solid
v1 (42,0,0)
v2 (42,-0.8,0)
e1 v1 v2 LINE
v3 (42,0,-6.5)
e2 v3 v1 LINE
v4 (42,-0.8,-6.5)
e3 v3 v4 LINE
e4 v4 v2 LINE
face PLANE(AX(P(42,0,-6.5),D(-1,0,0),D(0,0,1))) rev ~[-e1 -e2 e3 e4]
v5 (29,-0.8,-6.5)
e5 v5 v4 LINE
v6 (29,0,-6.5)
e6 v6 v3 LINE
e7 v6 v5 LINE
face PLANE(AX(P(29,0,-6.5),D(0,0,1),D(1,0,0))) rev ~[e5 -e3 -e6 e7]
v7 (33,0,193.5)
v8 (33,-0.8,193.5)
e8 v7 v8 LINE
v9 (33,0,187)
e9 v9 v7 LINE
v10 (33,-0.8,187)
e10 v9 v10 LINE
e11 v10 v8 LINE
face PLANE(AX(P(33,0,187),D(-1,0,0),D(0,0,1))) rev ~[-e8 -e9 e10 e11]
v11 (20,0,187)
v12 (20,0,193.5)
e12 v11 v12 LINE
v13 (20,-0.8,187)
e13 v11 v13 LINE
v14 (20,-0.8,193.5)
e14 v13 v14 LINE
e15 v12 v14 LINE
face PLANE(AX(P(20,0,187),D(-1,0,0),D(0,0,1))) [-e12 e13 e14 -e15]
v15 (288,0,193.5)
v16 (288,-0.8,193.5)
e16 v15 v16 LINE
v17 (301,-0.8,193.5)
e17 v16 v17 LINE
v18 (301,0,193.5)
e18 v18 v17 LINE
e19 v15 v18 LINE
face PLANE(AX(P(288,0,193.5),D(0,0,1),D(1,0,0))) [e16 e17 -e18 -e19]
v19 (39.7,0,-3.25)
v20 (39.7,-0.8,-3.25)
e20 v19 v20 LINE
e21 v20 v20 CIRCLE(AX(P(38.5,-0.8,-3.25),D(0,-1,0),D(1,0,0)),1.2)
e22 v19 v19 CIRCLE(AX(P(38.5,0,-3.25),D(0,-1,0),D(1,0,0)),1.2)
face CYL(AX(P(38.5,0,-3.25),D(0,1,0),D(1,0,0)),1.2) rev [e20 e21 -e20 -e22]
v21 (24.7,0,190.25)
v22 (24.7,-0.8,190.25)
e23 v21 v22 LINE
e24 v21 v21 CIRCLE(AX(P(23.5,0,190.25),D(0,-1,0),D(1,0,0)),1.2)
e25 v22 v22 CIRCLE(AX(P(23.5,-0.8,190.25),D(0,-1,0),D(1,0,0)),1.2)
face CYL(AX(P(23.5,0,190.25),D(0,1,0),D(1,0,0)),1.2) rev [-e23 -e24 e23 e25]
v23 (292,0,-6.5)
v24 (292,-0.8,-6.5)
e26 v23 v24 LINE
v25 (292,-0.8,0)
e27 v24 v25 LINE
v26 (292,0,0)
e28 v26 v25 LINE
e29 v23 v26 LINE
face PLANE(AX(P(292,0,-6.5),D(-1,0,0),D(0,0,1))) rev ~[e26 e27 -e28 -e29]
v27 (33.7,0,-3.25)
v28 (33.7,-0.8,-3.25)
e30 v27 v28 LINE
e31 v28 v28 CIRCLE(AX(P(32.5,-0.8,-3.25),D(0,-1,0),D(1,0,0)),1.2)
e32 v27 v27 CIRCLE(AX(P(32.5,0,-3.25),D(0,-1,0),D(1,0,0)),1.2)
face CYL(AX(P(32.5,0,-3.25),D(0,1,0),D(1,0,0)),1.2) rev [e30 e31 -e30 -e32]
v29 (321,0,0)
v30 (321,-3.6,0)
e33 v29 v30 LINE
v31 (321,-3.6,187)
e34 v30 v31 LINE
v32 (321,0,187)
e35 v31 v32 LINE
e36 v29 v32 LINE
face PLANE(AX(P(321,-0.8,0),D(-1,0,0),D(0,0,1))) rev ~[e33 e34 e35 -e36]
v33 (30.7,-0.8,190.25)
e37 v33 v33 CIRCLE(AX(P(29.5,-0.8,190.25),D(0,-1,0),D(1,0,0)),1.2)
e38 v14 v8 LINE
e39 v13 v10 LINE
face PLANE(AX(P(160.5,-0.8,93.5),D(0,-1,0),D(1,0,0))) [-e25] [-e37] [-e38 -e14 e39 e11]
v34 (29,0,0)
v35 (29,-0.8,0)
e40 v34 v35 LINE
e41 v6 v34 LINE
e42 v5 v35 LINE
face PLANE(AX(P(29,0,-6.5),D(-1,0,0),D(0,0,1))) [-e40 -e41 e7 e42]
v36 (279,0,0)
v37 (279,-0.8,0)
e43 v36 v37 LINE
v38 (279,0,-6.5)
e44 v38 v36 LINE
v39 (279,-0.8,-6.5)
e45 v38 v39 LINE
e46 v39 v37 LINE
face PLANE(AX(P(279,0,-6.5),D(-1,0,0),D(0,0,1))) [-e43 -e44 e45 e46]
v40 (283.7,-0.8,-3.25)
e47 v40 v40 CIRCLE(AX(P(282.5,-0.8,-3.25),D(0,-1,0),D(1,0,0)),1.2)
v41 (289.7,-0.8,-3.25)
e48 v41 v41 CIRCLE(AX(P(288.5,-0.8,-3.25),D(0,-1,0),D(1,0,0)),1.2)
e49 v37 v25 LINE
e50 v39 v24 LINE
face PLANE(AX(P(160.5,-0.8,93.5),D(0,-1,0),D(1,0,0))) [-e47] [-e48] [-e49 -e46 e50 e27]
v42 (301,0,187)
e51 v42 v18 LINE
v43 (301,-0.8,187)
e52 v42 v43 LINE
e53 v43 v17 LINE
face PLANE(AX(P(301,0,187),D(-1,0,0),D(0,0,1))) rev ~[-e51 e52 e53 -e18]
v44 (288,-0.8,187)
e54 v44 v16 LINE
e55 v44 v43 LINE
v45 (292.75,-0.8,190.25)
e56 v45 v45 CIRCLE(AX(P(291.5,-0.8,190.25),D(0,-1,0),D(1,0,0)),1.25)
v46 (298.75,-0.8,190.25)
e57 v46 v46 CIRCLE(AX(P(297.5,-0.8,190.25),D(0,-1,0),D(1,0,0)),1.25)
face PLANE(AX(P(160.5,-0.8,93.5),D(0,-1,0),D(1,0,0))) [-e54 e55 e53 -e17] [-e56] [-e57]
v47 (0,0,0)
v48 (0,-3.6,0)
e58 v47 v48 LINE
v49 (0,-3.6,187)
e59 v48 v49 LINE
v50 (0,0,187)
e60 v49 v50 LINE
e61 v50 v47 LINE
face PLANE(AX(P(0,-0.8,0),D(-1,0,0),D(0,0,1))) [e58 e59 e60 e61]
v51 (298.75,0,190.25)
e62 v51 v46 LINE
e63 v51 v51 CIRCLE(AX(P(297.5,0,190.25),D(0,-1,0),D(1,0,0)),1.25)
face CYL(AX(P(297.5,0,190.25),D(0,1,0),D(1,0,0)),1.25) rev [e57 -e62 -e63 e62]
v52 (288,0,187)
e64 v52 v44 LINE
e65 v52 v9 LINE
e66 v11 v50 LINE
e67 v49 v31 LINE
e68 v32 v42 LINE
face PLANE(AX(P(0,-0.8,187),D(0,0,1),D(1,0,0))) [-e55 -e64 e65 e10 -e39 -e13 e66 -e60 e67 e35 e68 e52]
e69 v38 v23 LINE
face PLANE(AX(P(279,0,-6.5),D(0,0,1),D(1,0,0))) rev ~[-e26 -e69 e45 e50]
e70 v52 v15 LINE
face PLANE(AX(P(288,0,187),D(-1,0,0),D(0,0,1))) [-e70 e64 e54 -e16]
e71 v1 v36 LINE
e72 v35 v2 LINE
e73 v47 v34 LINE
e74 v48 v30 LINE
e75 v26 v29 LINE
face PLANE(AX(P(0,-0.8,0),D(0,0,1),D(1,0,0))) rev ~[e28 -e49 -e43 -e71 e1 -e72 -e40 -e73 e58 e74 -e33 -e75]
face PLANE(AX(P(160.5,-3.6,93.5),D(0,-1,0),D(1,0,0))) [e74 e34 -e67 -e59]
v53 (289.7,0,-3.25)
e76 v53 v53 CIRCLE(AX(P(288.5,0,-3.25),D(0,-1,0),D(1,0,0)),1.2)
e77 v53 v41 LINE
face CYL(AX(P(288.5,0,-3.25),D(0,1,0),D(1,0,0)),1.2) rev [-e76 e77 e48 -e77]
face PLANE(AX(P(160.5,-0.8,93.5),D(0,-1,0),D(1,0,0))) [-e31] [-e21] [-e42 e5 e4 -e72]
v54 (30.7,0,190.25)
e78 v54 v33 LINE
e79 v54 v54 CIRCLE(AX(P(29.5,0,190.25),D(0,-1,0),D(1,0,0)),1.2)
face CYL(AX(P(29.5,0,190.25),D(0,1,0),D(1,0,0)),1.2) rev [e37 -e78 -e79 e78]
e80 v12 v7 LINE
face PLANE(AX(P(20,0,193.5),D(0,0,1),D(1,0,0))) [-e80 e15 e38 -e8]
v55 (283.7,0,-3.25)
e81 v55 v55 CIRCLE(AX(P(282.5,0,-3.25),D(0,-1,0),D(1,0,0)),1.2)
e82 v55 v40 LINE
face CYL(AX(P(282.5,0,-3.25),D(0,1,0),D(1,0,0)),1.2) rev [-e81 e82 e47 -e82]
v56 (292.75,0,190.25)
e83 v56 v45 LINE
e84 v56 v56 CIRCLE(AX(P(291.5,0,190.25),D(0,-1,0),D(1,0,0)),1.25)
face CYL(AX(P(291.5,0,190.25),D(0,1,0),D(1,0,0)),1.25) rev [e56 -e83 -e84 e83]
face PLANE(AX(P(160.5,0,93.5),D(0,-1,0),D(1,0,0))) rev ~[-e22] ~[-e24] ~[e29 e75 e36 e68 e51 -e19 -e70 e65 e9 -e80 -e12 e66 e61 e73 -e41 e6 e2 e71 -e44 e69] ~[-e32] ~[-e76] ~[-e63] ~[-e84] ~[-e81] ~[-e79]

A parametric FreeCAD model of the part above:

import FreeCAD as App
import Part
import Sketcher
from FreeCAD import Vector
Q = App.Units.Quantity


def add_polygon(sketch, points):
    """Adds a closed chain of lines whose ends are joined by coincident constraints."""
    first, n = sketch.GeometryCount, len(points)
    for a, b in zip(points, points[1:] + points[:1]):
        sketch.addGeometry(Part.LineSegment(App.Vector(*a, 0), App.Vector(*b, 0)), False)
    for i in range(n):
        sketch.addConstraint(Sketcher.Constraint("Coincident", first + i, 2, first + (i + 1) % n, 1))

doc = App.newDocument("Part")
body = doc.addObject("PartDesign::Body", "Body")

sketch1 = body.newObject("Sketcher::SketchObject", "Sketch")
sketch1.AttachmentSupport = (doc.getObject("XZ_Plane"), [""])
sketch1.MapMode = "FlatFace"
add_polygon(sketch1, [(0, 187), (0, 0), (29, 0), (29, -6.5), (42, -6.5), (42, 0), (279, 0), (279, -6.5), (292, -6.5), (292, 0), (321, 0), (321, 187), (301, 187), (301, 193.5), (288, 193.5), (288, 187), (33, 187), (33, 193.5), (20, 193.5), (20, 187)])
sketch1.addGeometry(Part.Circle(Vector(32.5, -3.2, 0), Vector(0, 0, 1), 1.2), False)
sketch1.addGeometry(Part.Circle(Vector(38.5, -3.2, 0), Vector(0, 0, 1), 1.2), False)
sketch1.addGeometry(Part.Circle(Vector(282.5, -3.2, 0), Vector(0, 0, 1), 1.2), False)
sketch1.addGeometry(Part.Circle(Vector(288.5, -3.2, 0), Vector(0, 0, 1), 1.2), False)
sketch1.addGeometry(Part.Circle(Vector(23.5, 190.2, 0), Vector(0, 0, 1), 1.2), False)
sketch1.addGeometry(Part.Circle(Vector(29.5, 190.2, 0), Vector(0, 0, 1), 1.2), False)
sketch1.addGeometry(Part.Circle(Vector(291.5, 190.2, 0), Vector(0, 0, 1), 1.2), False)
sketch1.addGeometry(Part.Circle(Vector(297.5, 190.2, 0), Vector(0, 0, 1), 1.2), False)
sketch1.addConstraint([
    Sketcher.Constraint("Vertical", 0),
    Sketcher.Constraint("Horizontal", 1),
    Sketcher.Constraint("Vertical", 2),
    Sketcher.Constraint("Horizontal", 3),
    Sketcher.Constraint("Vertical", 4),
    Sketcher.Constraint("Horizontal", 5),
    Sketcher.Constraint("Vertical", 6),
    Sketcher.Constraint("Horizontal", 7),
    Sketcher.Constraint("Vertical", 8),
    Sketcher.Constraint("Horizontal", 9),
    Sketcher.Constraint("Vertical", 10),
    Sketcher.Constraint("Horizontal", 11),
    Sketcher.Constraint("Vertical", 12),
    Sketcher.Constraint("Horizontal", 13),
    Sketcher.Constraint("Vertical", 14),
    Sketcher.Constraint("Horizontal", 15),
    Sketcher.Constraint("Vertical", 16),
    Sketcher.Constraint("Horizontal", 17),
    Sketcher.Constraint("Vertical", 18),
    Sketcher.Constraint("Horizontal", 19),
    Sketcher.Constraint("Coincident", 0, 2, -1, 1),
    Sketcher.Constraint("Equal", 20, 21),
    Sketcher.Constraint("Equal", 21, 22),
    Sketcher.Constraint("Equal", 22, 23),
    Sketcher.Constraint("Equal", 23, 24),
    Sketcher.Constraint("Equal", 24, 25),
    Sketcher.Constraint("Equal", 26, 27),
    Sketcher.Constraint("PointOnObject", 4, 2, -1),
    Sketcher.Constraint("PointOnObject", 8, 2, -1),
    Sketcher.Constraint("Horizontal", 20, 3, 21, 3),
    Sketcher.Constraint("Horizontal", 21, 3, 22, 3),
    Sketcher.Constraint("Horizontal", 22, 3, 23, 3),
    Sketcher.Constraint("Horizontal", 24, 3, 25, 3),
    Sketcher.Constraint("Horizontal", 25, 3, 26, 3),
    Sketcher.Constraint("Horizontal", 26, 3, 27, 3),
    Sketcher.Constraint("Horizontal", 3, 2, 6, 2),
    Sketcher.Constraint("Horizontal", 11, 2, 14, 2),
    Sketcher.Constraint("Horizontal", 13, 2, 16, 2),
    Sketcher.Constraint("Horizontal", 15, 2, 18, 2),
    Sketcher.Constraint("Equal", 3, 7),
    Sketcher.Constraint("Equal", 1, 9),
    Sketcher.Constraint("Equal", 7, 13),
    Sketcher.Constraint("Equal", 13, 17),
    Sketcher.Constraint("Equal", 11, 19),
    Sketcher.Constraint("Equal", 8, 12),
    Sketcher.Constraint("Diameter", 20, Q("2.4 mm")),
    Sketcher.Constraint("Diameter", 26, Q("2.5 mm")),
    Sketcher.Constraint("DistanceX", 1, 1, 1, 2, Q("29 mm")),
    Sketcher.Constraint("DistanceX", 3, 1, 3, 2, Q("13 mm")),
    Sketcher.Constraint("DistanceX", 5, 1, 5, 2, Q("237 mm")),
    Sketcher.Constraint("DistanceX", 11, 2, 11, 1, Q("20 mm")),
    Sketcher.Constraint("DistanceY", 0, 2, 0, 1, Q("187 mm")),
    Sketcher.Constraint("DistanceY", 2, 2, 2, 1, Q("6.5 mm")),
    Sketcher.Constraint("DistanceX", 20, 3, 21, 3, Q("6 mm")),
    Sketcher.Constraint("DistanceX", 21, 3, 22, 3, Q("244 mm")),
    Sketcher.Constraint("DistanceX", 22, 3, 23, 3, Q("6 mm")),
    Sketcher.Constraint("DistanceX", 24, 3, 20, 3, Q("9 mm")),
    Sketcher.Constraint("DistanceX", 24, 3, 25, 3, Q("6 mm")),
    Sketcher.Constraint("DistanceX", 23, 3, 26, 3, Q("3 mm")),
    Sketcher.Constraint("DistanceX", 26, 3, 27, 3, Q("6 mm")),
    Sketcher.Constraint("DistanceX", -1, 1, 20, 3, Q("32.5 mm")),
    Sketcher.Constraint("DistanceY", 20, 3, 24, 3, Q("193.5 mm")),
    Sketcher.Constraint("DistanceY", 20, 3, -1, 1, Q("3.25 mm")),
])
pad1 = body.newObject("PartDesign::Pad", "Pad")
pad1.Profile = sketch1
pad1.Length = 0.8

sketch2 = body.newObject("Sketcher::SketchObject", "Sketch001")
sketch2.AttachmentSupport = (doc.getObject("XZ_Plane"), [""])
sketch2.MapMode = "FlatFace"
sketch2.AttachmentOffset = App.Placement(Vector(0, 0, 0.8), App.Rotation())
add_polygon(sketch2, [(0, 187), (0, 0), (321, 0), (321, 187)])
sketch2.addConstraint([
    Sketcher.Constraint("Vertical", 0),
    Sketcher.Constraint("Horizontal", 1),
    Sketcher.Constraint("Vertical", 2),
    Sketcher.Constraint("Horizontal", 3),
    Sketcher.Constraint("Coincident", 0, 2, -1, 1),
    Sketcher.Constraint("DistanceX", 1, 1, 1, 2, Q("321 mm")),
    Sketcher.Constraint("DistanceY", 0, 2, 0, 1, Q("187 mm")),
])
pad2 = body.newObject("PartDesign::Pad", "Pad001")
pad2.Profile = sketch2
pad2.Length = 2.8

doc.recompute()
